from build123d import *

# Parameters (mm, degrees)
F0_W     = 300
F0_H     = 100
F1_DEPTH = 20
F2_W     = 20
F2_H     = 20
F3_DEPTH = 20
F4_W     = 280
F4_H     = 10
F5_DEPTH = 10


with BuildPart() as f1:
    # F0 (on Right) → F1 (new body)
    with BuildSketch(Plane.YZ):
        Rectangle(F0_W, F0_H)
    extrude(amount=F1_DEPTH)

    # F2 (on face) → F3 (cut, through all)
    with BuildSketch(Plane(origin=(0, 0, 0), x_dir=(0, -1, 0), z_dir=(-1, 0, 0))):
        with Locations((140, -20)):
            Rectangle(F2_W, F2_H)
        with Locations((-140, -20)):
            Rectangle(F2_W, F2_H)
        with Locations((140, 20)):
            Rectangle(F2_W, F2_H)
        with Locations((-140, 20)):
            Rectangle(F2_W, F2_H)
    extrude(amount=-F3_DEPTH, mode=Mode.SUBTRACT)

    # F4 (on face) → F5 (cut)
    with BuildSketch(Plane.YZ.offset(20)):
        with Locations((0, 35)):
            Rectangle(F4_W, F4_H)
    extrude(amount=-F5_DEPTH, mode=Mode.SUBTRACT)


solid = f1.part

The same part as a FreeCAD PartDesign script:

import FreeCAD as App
import Part
import Sketcher
Q = App.Units.Quantity


def add_polygon(sketch, points):
    """Adds a closed chain of lines whose ends are joined by coincident constraints."""
    first, n = sketch.GeometryCount, len(points)
    for a, b in zip(points, points[1:] + points[:1]):
        sketch.addGeometry(Part.LineSegment(App.Vector(*a, 0), App.Vector(*b, 0)), False)
    for i in range(n):
        sketch.addConstraint(Sketcher.Constraint("Coincident", first + i, 2, first + (i + 1) % n, 1))

doc = App.newDocument("Part")
params = doc.addObject("Spreadsheet::Sheet", "Params")
for row, (alias, value) in enumerate([
    ("sketch1_width", "300 mm"),
    ("sketch1_height", "100 mm"),
    ("pad1_length", "20 mm"),
    ("sketch2_width", "20 mm"),
    ("sketch3_width", "280 mm"),
    ("sketch3_height", "10 mm"),
    ("pocket2_length", "10 mm"),
], start=1):
    params.set(f"A{row}", alias)
    params.set(f"B{row}", "=" + value)
    params.setAlias(f"B{row}", alias)

body = doc.addObject("PartDesign::Body", "Body")

# Sketch on YZ plane
sketch1 = doc.addObject("Sketcher::SketchObject", "Sketch")
body.addObject(sketch1)
sketch1.AttachmentSupport = (doc.YZ_Plane, [""])
sketch1.MapMode = "FlatFace"
add_polygon(sketch1, [(-150, 50), (-150, -50), (150, -50), (150, 50)])  # lines 0-3
sketch1.addConstraint([
    Sketcher.Constraint("Vertical", 0),
    Sketcher.Constraint("Horizontal", 1),
    Sketcher.Constraint("Vertical", 2),
    Sketcher.Constraint("Horizontal", 3),
    Sketcher.Constraint("Symmetric", 0, 2, 2, 2, -1, 1),
    Sketcher.Constraint("DistanceX", 1, 1, 1, 2, Q("300 mm")),
    Sketcher.Constraint("DistanceY", 0, 2, 0, 1, Q("100 mm")),
])
sketch1.setExpression("Constraints[9]", "Params.sketch1_width")
sketch1.setExpression("Constraints[10]", "Params.sketch1_height")
pad1 = doc.addObject("PartDesign::Pad", "Pad")
body.addObject(pad1)
pad1.Profile = sketch1
pad1.setExpression("Length", "Params.pad1_length")

# Sketch on YZ plane
sketch2 = doc.addObject("Sketcher::SketchObject", "Sketch001")
body.addObject(sketch2)
sketch2.AttachmentSupport = (doc.YZ_Plane, [""])
sketch2.MapMode = "FlatFace"
add_polygon(sketch2, [(-130, -10), (-130, -30), (-150, -30), (-150, -10)])  # lines 0-3
add_polygon(sketch2, [(150, -10), (150, -30), (130, -30), (130, -10)])  # lines 4-7
add_polygon(sketch2, [(-130, 30), (-130, 10), (-150, 10), (-150, 30)])  # lines 8-11
add_polygon(sketch2, [(150, 30), (150, 10), (130, 10), (130, 30)])  # lines 12-15
sketch2.addConstraint([
    Sketcher.Constraint("Vertical", 0),
    Sketcher.Constraint("Horizontal", 1),
    Sketcher.Constraint("Vertical", 2),
    Sketcher.Constraint("Horizontal", 3),
    Sketcher.Constraint("Vertical", 4),
    Sketcher.Constraint("Horizontal", 5),
    Sketcher.Constraint("Vertical", 6),
    Sketcher.Constraint("Horizontal", 7),
    Sketcher.Constraint("Vertical", 8),
    Sketcher.Constraint("Horizontal", 9),
    Sketcher.Constraint("Vertical", 10),
    Sketcher.Constraint("Horizontal", 11),
    Sketcher.Constraint("Vertical", 12),
    Sketcher.Constraint("Horizontal", 13),
    Sketcher.Constraint("Vertical", 14),
    Sketcher.Constraint("Horizontal", 15),
    Sketcher.Constraint("Symmetric", 6, 2, 8, 2, -1, 1),
    Sketcher.Constraint("Symmetric", 4, 2, 10, 2, -1, 1),
    Sketcher.Constraint("Symmetric", 2, 2, 12, 2, -1, 1),
    Sketcher.Constraint("Symmetric", 0, 2, 14, 2, -1, 1),
    Sketcher.Constraint("Symmetric", 1, 2, 4, 2, -2),
    Sketcher.Constraint("Symmetric", 3, 2, 6, 2, -2),
    Sketcher.Constraint("Equal", 15, 0),
    Sketcher.Constraint("DistanceX", 1, 2, 1, 1, Q("20 mm")),
    Sketcher.Constraint("DistanceX", 0, 2, -1, 1, Q("130 mm")),
    Sketcher.Constraint("DistanceY", 0, 2, -1, 1, Q("30 mm")),
])
sketch2.setExpression("Constraints[39]", "Params.sketch2_width")
pocket1 = doc.addObject("PartDesign::Pocket", "Pocket")
body.addObject(pocket1)
pocket1.Profile = sketch2
pocket1.Type = "ThroughAll"
pocket1.Reversed = True

# Sketch on YZ plane
sketch3 = doc.addObject("Sketcher::SketchObject", "Sketch002")
body.addObject(sketch3)
sketch3.AttachmentSupport = (doc.YZ_Plane, [""])
sketch3.MapMode = "FlatFace"
sketch3.AttachmentOffset = App.Placement(App.Vector(0, 0, 20), App.Rotation())
add_polygon(sketch3, [(-140, 40), (-140, 30), (140, 30), (140, 40)])  # lines 0-3
sketch3.addConstraint([
    Sketcher.Constraint("Vertical", 0),
    Sketcher.Constraint("Horizontal", 1),
    Sketcher.Constraint("Vertical", 2),
    Sketcher.Constraint("Horizontal", 3),
    Sketcher.Constraint("DistanceX", 1, 1, 1, 2, Q("280 mm")),
    Sketcher.Constraint("DistanceY", 0, 2, 0, 1, Q("10 mm")),
    Sketcher.Constraint("DistanceX", 0, 2, -1, 1, Q("140 mm")),
    Sketcher.Constraint("DistanceY", -1, 1, 0, 2, Q("30 mm")),
])
sketch3.setExpression("Constraints[8]", "Params.sketch3_width")
sketch3.setExpression("Constraints[9]", "Params.sketch3_height")
pocket2 = doc.addObject("PartDesign::Pocket", "Pocket001")
body.addObject(pocket2)
pocket2.Profile = sketch3
pocket2.setExpression("Length", "Params.pocket2_length")

doc.recompute()
